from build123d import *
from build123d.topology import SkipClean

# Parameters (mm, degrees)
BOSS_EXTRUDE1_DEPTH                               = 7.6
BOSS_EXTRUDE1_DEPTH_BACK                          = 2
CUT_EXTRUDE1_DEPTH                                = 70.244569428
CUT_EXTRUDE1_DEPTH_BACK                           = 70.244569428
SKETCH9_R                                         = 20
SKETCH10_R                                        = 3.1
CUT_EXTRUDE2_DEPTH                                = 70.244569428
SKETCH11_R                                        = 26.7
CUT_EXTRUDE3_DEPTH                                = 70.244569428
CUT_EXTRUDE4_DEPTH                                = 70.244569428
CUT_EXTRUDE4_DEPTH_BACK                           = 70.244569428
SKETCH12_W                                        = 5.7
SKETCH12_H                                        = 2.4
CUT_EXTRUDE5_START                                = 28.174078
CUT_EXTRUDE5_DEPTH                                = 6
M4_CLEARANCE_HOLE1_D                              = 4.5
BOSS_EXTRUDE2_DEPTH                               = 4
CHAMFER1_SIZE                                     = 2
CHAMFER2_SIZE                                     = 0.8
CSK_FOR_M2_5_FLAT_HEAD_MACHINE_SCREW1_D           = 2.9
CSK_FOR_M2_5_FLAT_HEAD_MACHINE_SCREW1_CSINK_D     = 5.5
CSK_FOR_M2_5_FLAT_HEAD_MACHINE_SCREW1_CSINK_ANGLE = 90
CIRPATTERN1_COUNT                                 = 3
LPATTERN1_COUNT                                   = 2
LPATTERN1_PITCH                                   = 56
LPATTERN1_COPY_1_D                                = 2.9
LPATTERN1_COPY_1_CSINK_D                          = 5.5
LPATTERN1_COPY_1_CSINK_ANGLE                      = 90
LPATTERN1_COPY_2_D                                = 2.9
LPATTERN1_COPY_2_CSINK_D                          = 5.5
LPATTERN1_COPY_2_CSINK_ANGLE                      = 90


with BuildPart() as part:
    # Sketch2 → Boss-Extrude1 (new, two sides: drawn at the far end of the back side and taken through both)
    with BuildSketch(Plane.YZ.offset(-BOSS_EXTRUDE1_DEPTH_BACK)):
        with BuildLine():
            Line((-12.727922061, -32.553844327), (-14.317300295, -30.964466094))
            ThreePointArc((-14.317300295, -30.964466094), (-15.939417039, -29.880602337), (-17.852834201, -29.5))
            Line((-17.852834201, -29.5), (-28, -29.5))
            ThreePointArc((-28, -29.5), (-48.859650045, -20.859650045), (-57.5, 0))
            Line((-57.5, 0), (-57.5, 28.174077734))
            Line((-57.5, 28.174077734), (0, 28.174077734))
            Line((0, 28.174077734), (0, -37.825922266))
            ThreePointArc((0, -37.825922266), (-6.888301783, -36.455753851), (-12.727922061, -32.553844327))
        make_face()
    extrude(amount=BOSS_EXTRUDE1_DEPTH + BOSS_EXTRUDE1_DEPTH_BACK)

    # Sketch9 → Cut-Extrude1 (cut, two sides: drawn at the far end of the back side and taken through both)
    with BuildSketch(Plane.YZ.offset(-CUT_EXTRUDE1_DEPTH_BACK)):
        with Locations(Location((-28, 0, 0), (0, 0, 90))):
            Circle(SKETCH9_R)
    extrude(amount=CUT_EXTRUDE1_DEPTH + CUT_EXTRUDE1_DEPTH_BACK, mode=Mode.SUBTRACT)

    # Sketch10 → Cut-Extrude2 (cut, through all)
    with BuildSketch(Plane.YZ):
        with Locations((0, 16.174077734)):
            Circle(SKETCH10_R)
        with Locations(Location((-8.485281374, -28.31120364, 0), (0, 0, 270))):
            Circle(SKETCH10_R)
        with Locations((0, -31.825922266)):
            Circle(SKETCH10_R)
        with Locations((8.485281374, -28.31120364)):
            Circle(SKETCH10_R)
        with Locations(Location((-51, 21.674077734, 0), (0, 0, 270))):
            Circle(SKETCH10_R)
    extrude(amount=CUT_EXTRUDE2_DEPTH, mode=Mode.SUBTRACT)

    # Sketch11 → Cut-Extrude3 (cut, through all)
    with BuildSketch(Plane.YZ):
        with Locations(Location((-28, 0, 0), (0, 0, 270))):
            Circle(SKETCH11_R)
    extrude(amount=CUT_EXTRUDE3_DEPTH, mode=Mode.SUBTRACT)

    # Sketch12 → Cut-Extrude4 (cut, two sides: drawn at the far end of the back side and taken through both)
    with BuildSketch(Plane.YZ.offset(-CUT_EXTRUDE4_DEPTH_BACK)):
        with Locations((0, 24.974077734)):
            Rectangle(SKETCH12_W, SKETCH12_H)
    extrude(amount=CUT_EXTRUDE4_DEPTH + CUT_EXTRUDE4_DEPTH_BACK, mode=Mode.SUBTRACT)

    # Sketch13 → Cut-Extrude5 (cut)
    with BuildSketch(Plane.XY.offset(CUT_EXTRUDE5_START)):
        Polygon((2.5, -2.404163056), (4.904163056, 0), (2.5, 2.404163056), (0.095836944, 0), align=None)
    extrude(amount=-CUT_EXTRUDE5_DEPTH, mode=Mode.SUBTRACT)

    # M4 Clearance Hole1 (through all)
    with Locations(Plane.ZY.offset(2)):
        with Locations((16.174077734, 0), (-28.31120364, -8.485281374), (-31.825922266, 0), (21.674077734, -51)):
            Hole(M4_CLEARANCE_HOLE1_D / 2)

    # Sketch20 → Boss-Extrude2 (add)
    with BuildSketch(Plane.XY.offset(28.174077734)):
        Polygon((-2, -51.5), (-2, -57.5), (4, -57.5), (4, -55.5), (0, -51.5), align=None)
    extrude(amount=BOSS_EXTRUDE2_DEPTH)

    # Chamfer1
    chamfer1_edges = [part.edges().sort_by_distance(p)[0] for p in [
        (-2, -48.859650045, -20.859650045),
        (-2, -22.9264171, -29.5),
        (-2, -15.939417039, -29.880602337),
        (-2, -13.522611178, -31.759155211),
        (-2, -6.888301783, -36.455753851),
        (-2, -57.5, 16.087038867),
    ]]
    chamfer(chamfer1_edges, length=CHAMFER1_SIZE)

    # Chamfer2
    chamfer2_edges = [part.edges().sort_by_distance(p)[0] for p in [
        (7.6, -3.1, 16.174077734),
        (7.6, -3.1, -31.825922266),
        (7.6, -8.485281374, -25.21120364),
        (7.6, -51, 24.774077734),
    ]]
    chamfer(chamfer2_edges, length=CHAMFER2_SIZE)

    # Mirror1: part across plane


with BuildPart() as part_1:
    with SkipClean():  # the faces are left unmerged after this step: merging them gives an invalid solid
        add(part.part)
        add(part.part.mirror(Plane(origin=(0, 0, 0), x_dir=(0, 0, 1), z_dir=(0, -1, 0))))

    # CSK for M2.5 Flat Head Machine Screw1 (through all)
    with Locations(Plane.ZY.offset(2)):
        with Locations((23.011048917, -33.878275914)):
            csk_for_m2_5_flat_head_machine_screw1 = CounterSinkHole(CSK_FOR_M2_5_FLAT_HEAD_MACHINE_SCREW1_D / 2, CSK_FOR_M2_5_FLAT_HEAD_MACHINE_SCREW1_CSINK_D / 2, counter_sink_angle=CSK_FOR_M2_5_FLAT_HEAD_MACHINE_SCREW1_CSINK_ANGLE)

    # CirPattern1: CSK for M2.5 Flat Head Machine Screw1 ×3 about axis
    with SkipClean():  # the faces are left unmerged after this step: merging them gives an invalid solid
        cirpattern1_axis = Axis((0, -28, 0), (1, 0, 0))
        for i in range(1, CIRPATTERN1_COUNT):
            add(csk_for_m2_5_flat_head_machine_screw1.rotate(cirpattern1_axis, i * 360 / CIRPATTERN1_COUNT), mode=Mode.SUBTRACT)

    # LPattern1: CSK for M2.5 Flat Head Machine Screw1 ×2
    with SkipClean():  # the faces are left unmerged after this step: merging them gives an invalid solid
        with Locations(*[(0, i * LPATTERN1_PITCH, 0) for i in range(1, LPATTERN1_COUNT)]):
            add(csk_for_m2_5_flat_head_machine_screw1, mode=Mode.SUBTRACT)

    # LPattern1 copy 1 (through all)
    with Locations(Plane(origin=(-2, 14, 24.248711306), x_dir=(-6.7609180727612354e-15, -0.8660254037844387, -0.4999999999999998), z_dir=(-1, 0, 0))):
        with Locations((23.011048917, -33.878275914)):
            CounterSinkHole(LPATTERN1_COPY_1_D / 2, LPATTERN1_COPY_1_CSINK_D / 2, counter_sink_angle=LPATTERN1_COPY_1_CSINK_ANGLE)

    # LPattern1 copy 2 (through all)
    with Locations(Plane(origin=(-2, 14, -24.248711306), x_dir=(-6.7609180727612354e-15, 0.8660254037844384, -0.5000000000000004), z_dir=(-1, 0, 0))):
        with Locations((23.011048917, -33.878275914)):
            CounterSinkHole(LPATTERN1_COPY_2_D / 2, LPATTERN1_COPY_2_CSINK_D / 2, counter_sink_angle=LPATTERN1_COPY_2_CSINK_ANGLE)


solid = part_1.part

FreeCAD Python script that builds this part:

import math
import FreeCAD as App
import Part
import Sketcher
Q = App.Units.Quantity


def edges_at(feature, points):
    """Names of the edges that pass closest to the given points."""
    edges = feature.Shape.Edges
    near = lambda p: min(range(len(edges)), key=lambda i: edges[i].distToShape(Part.Vertex(*p))[0])
    return sorted({f"Edge{near(p) + 1}" for p in points})

doc = App.newDocument("Part")
body = doc.addObject("PartDesign::Body", "Body")

# Sketch on YZ plane
sketch1 = body.newObject("Sketcher::SketchObject", "Sketch")
sketch1.AttachmentSupport = (doc.getObject("YZ_Plane"), [""])
sketch1.MapMode = "FlatFace"
sketch1.addGeometry([
    Part.LineSegment(App.Vector(-14.3173, -30.964466, 0), App.Vector(-12.727922, -32.553844, 0)),  # 0
    Part.ArcOfCircle(Part.Circle(App.Vector(0, -19.825922, 0), App.Vector(0, 0, 1), 18), math.radians(-135), math.radians(-90)),  # 1
    Part.LineSegment(App.Vector(0, -37.825922, 0), App.Vector(0, 28.174078, 0)),  # 2
    Part.LineSegment(App.Vector(0, 28.174078, 0), App.Vector(-57.5, 28.174078, 0)),  # 3
    Part.LineSegment(App.Vector(-57.5, 28.174078, 0), App.Vector(-57.5, 0, 0)),  # 4
    Part.ArcOfCircle(Part.Circle(App.Vector(-28, 0, 0), App.Vector(0, 0, 1), 29.5), math.radians(180), math.radians(270)),  # 5
    Part.LineSegment(App.Vector(-28, -29.5, 0), App.Vector(-17.852834, -29.5, 0)),  # 6
    Part.ArcOfCircle(Part.Circle(App.Vector(-17.852834, -34.5, 0), App.Vector(0, 0, 1), 5), math.radians(45), math.radians(90)),  # 7
], False)
sketch1.addConstraint([
    Sketcher.Constraint("Tangent", 0, 2, 1, 1),
    Sketcher.Constraint("Coincident", 1, 2, 2, 1),
    Sketcher.Constraint("Coincident", 2, 2, 3, 1),
    Sketcher.Constraint("Coincident", 3, 2, 4, 1),
    Sketcher.Constraint("Tangent", 4, 2, 5, 1),
    Sketcher.Constraint("Tangent", 5, 2, 6, 1),
    Sketcher.Constraint("Tangent", 6, 2, 7, 2),
    Sketcher.Constraint("Tangent", 7, 1, 0, 1),
    Sketcher.Constraint("Vertical", 2),
    Sketcher.Constraint("Horizontal", 3),
    Sketcher.Constraint("Vertical", 4),
    Sketcher.Constraint("Horizontal", 6),
    Sketcher.Constraint("PointOnObject", 1, 3, -2),
    Sketcher.Constraint("PointOnObject", 5, 3, -1),
    Sketcher.Constraint("PointOnObject", 1, 2, -2),
    Sketcher.Constraint("Radius", 1, Q("18 mm")),
    Sketcher.Constraint("Radius", 7, Q("5 mm")),
    Sketcher.Constraint("Radius", 5, Q("29.5 mm")),
    Sketcher.Constraint("DistanceY", 2, 1, 2, 2, Q("66 mm")),
    Sketcher.Constraint("Angle", 0, Q("-45 deg")),
    Sketcher.Constraint("DistanceX", 3, 2, 3, 1, Q("57.5 mm")),
    Sketcher.Constraint("DistanceX", 7, 1, -1, 1, Q("14.3173 mm")),
])
pad1 = body.newObject("PartDesign::Pad", "Pad")
pad1.Profile = sketch1
pad1.Type = "TwoLengths"
pad1.Length = 7.6
pad1.Length2 = 2

# Sketch on YZ plane
sketch2 = body.newObject("Sketcher::SketchObject", "Sketch001")
sketch2.AttachmentSupport = (doc.getObject("YZ_Plane"), [""])
sketch2.MapMode = "FlatFace"
sketch2.addGeometry(Part.Circle(App.Vector(-28, 0, 0), App.Vector(0, 0, 1), 20), False)
sketch2.addConstraint([
    Sketcher.Constraint("PointOnObject", 0, 3, -1),
    Sketcher.Constraint("Diameter", 0, Q("40 mm")),
    Sketcher.Constraint("DistanceX", 0, 3, -1, 1, Q("28 mm")),
])
pocket1 = body.newObject("PartDesign::Pocket", "Pocket")
pocket1.Profile = sketch2
pocket1.Type = "ThroughAll"
pocket1.Midplane = True

# Sketch on YZ plane
sketch3 = body.newObject("Sketcher::SketchObject", "Sketch002")
sketch3.AttachmentSupport = (doc.getObject("YZ_Plane"), [""])
sketch3.MapMode = "FlatFace"
sketch3.addGeometry([
    Part.Circle(App.Vector(0, 16.174078, 0), App.Vector(0, 0, 1), 3.1),  # 0
    Part.Circle(App.Vector(-8.485281, -28.311204, 0), App.Vector(0, 0, 1), 3.1),  # 1
    Part.Circle(App.Vector(0, -31.825922, 0), App.Vector(0, 0, 1), 3.1),  # 2
    Part.Circle(App.Vector(8.485281, -28.311204, 0), App.Vector(0, 0, 1), 3.1),  # 3
    Part.Circle(App.Vector(-51, 21.674078, 0), App.Vector(0, 0, 1), 3.1),  # 4
], False)
sketch3.addConstraint([
    Sketcher.Constraint("Equal", 0, 1),
    Sketcher.Constraint("Equal", 1, 2),
    Sketcher.Constraint("Equal", 2, 3),
    Sketcher.Constraint("Equal", 3, 4),
    Sketcher.Constraint("Symmetric", 1, 3, 3, 3, -2),
    Sketcher.Constraint("PointOnObject", 0, 3, -2),
    Sketcher.Constraint("PointOnObject", 2, 3, -2),
    Sketcher.Constraint("Diameter", 0, Q("6.2 mm")),
    Sketcher.Constraint("DistanceX", 4, 3, -1, 1, Q("51 mm")),
    Sketcher.Constraint("DistanceY", 2, 3, 0, 3, Q("48 mm")),
    Sketcher.Constraint("DistanceY", 0, 3, 4, 3, Q("5.5 mm")),
    Sketcher.Constraint("DistanceX", 1, 3, -1, 1, Q("8.485281 mm")),
    Sketcher.Constraint("DistanceY", 1, 3, 0, 3, Q("44.485281 mm")),
    Sketcher.Constraint("DistanceY", -1, 1, 0, 3, Q("16.174078 mm")),
])
pocket2 = body.newObject("PartDesign::Pocket", "Pocket001")
pocket2.Profile = sketch3
pocket2.Type = "ThroughAll"
pocket2.Reversed = True

# Sketch on YZ plane
sketch4 = body.newObject("Sketcher::SketchObject", "Sketch003")
sketch4.AttachmentSupport = (doc.getObject("YZ_Plane"), [""])
sketch4.MapMode = "FlatFace"
sketch4.addGeometry(Part.Circle(App.Vector(-28, 0, 0), App.Vector(0, 0, 1), 26.7), False)
sketch4.addConstraint([
    Sketcher.Constraint("PointOnObject", 0, 3, -1),
    Sketcher.Constraint("Diameter", 0, Q("53.4 mm")),
    Sketcher.Constraint("DistanceX", 0, 3, -1, 1, Q("28 mm")),
])
pocket3 = body.newObject("PartDesign::Pocket", "Pocket002")
pocket3.Profile = sketch4
pocket3.Type = "ThroughAll"
pocket3.Reversed = True

# Sketch on YZ plane
sketch5 = body.newObject("Sketcher::SketchObject", "Sketch004")
sketch5.AttachmentSupport = (doc.getObject("YZ_Plane"), [""])
sketch5.MapMode = "FlatFace"
sketch5.addGeometry([
    Part.LineSegment(App.Vector(-2.85, 26.174078, 0), App.Vector(-2.85, 23.774078, 0)),
    Part.LineSegment(App.Vector(-2.85, 23.774078, 0), App.Vector(2.85, 23.774078, 0)),
    Part.LineSegment(App.Vector(2.85, 23.774078, 0), App.Vector(2.85, 26.174078, 0)),
    Part.LineSegment(App.Vector(2.85, 26.174078, 0), App.Vector(-2.85, 26.174078, 0)),
], False)
sketch5.addConstraint([
    Sketcher.Constraint("Coincident", 0, 2, 1, 1),
    Sketcher.Constraint("Coincident", 1, 2, 2, 1),
    Sketcher.Constraint("Coincident", 2, 2, 3, 1),
    Sketcher.Constraint("Coincident", 3, 2, 0, 1),
    Sketcher.Constraint("Vertical", 0),
    Sketcher.Constraint("Horizontal", 1),
    Sketcher.Constraint("Vertical", 2),
    Sketcher.Constraint("Horizontal", 3),
    Sketcher.Constraint("DistanceX", 1, 1, 1, 2, Q("5.7 mm")),
    Sketcher.Constraint("DistanceY", 0, 2, 0, 1, Q("2.4 mm")),
    Sketcher.Constraint("DistanceX", 0, 2, -1, 1, Q("2.85 mm")),
    Sketcher.Constraint("DistanceY", -1, 1, 0, 2, Q("23.774078 mm")),
])
pocket4 = body.newObject("PartDesign::Pocket", "Pocket003")
pocket4.Profile = sketch5
pocket4.Type = "ThroughAll"
pocket4.Midplane = True

# Sketch on XY plane
sketch6 = body.newObject("Sketcher::SketchObject", "Sketch005")
sketch6.AttachmentSupport = (doc.getObject("XY_Plane"), [""])
sketch6.MapMode = "FlatFace"
sketch6.AttachmentOffset = App.Placement(App.Vector(0, 0, 28.174078), App.Rotation())
sketch6.addGeometry([
    Part.LineSegment(App.Vector(2.5, -2.404163, 0), App.Vector(4.904163, 0, 0)),
    Part.LineSegment(App.Vector(4.904163, 0, 0), App.Vector(2.5, 2.404163, 0)),
    Part.LineSegment(App.Vector(2.5, 2.404163, 0), App.Vector(0.095837, 0, 0)),
    Part.LineSegment(App.Vector(0.095837, 0, 0), App.Vector(2.5, -2.404163, 0)),
], False)
sketch6.addConstraint([
    Sketcher.Constraint("Coincident", 0, 2, 1, 1),
    Sketcher.Constraint("Coincident", 1, 2, 2, 1),
    Sketcher.Constraint("Coincident", 2, 2, 3, 1),
    Sketcher.Constraint("Coincident", 3, 2, 0, 1),
    Sketcher.Constraint("Symmetric", 1, 2, 3, 2, -1),
    Sketcher.Constraint("PointOnObject", 0, 2, -1),
    Sketcher.Constraint("PointOnObject", 2, 2, -1),
    Sketcher.Constraint("Perpendicular", 0, 1),
    Sketcher.Constraint("Perpendicular", 1, 2),
    Sketcher.Constraint("Distance", 0, Q("3.4 mm")),
    Sketcher.Constraint("DistanceX", -1, 1, 1, 2, Q("2.5 mm")),
])
pocket5 = body.newObject("PartDesign::Pocket", "Pocket004")
pocket5.Profile = sketch6
pocket5.Length = 6

# Sketch on YZ plane
sketch7 = body.newObject("Sketcher::SketchObject", "Sketch006")
sketch7.AttachmentSupport = (doc.getObject("YZ_Plane"), [""])
sketch7.MapMode = "FlatFace"
sketch7.AttachmentOffset = App.Placement(App.Vector(0, 0, -2), App.Rotation())
sketch7.addGeometry([
    Part.Circle(App.Vector(0, 16.174078, 0), App.Vector(0, 0, 1), 2.25),
    Part.Circle(App.Vector(-8.485281, -28.311204, 0), App.Vector(0, 0, 1), 2.25),
    Part.Circle(App.Vector(0, -31.825922, 0), App.Vector(0, 0, 1), 2.25),
    Part.Circle(App.Vector(-51, 21.674078, 0), App.Vector(0, 0, 1), 2.25),
], False)
sketch7.addConstraint([
    Sketcher.Constraint("Equal", 0, 1),
    Sketcher.Constraint("Equal", 1, 2),
    Sketcher.Constraint("Equal", 2, 3),
    Sketcher.Constraint("PointOnObject", 0, 3, -2),
    Sketcher.Constraint("PointOnObject", 2, 3, -2),
    Sketcher.Constraint("Diameter", 0, Q("4.5 mm")),
    Sketcher.Constraint("DistanceX", 3, 3, -1, 1, Q("51 mm")),
    Sketcher.Constraint("DistanceY", 2, 3, 0, 3, Q("48 mm")),
    Sketcher.Constraint("DistanceY", 0, 3, 3, 3, Q("5.5 mm")),
    Sketcher.Constraint("DistanceX", 1, 3, -1, 1, Q("8.485281 mm")),
    Sketcher.Constraint("DistanceY", 1, 3, 0, 3, Q("44.485281 mm")),
    Sketcher.Constraint("DistanceY", -1, 1, 0, 3, Q("16.174078 mm")),
])
doc.recompute()
hole = body.newObject("PartDesign::Hole", "Hole")
hole.Profile = sketch7
hole.ThreadType = "None"
hole.Diameter = 4.5
hole.DepthType = "ThroughAll"
hole.Reversed = True

# Sketch on XY plane
sketch8 = body.newObject("Sketcher::SketchObject", "Sketch007")
sketch8.AttachmentSupport = (doc.getObject("XY_Plane"), [""])
sketch8.MapMode = "FlatFace"
sketch8.AttachmentOffset = App.Placement(App.Vector(0, 0, 28.174078), App.Rotation())
sketch8.addGeometry([
    Part.LineSegment(App.Vector(-2, -51.5, 0), App.Vector(-2, -57.5, 0)),  # 0
    Part.LineSegment(App.Vector(-2, -57.5, 0), App.Vector(4, -57.5, 0)),  # 1
    Part.LineSegment(App.Vector(4, -57.5, 0), App.Vector(4, -55.5, 0)),  # 2
    Part.LineSegment(App.Vector(4, -55.5, 0), App.Vector(0, -51.5, 0)),  # 3
    Part.LineSegment(App.Vector(0, -51.5, 0), App.Vector(-2, -51.5, 0)),  # 4
], False)
sketch8.addConstraint([
    Sketcher.Constraint("Coincident", 0, 2, 1, 1),
    Sketcher.Constraint("Coincident", 1, 2, 2, 1),
    Sketcher.Constraint("Coincident", 2, 2, 3, 1),
    Sketcher.Constraint("Coincident", 3, 2, 4, 1),
    Sketcher.Constraint("Coincident", 4, 2, 0, 1),
    Sketcher.Constraint("Vertical", 0),
    Sketcher.Constraint("Horizontal", 1),
    Sketcher.Constraint("Vertical", 2),
    Sketcher.Constraint("Horizontal", 4),
    Sketcher.Constraint("PointOnObject", 3, 2, -2),
    Sketcher.Constraint("Equal", 1, 0),
    Sketcher.Constraint("Equal", 4, 2),
    Sketcher.Constraint("DistanceX", 1, 1, 1, 2, Q("6 mm")),
    Sketcher.Constraint("DistanceX", 4, 2, 4, 1, Q("2 mm")),
    Sketcher.Constraint("DistanceY", 0, 2, -1, 1, Q("57.5 mm")),
])
pad2 = body.newObject("PartDesign::Pad", "Pad001")
pad2.Profile = sketch8
pad2.Length = 4
doc.recompute()

chamfer = body.newObject("PartDesign::Chamfer", "Chamfer")
chamfer.Base = (pad2, edges_at(pad2, [
    (-2, -48.86, -20.86),
    (-2, -22.926, -29.5),
    (-2, -15.939, -29.881),
    (-2, -13.523, -31.759),
    (-2, -6.888, -36.456),
    (-2, -57.5, 16.087),
]))
chamfer.Size = 2
doc.recompute()

chamfer2 = body.newObject("PartDesign::Chamfer", "Chamfer001")
chamfer2.Base = (chamfer, edges_at(chamfer, [
    (7.6, -3.1, 16.174),
    (7.6, -3.1, -31.826),
    (7.6, -8.485, -25.211),
    (7.6, -51, 24.774),
]))
chamfer2.Size = 0.8
body2 = doc.addObject("PartDesign::Body", "Body001")
doc.recompute()

body2.BaseFeature = body
doc.recompute()

mirroring = doc.addObject("Part::Mirroring", "Mirroring")
mirroring.Source = body
mirroring.Base = App.Vector(0, 0, 0)
mirroring.Normal = App.Vector(0, -1, 0)
body3 = doc.addObject("PartDesign::Body", "Body002")
body3.BaseFeature = mirroring
boolean = body2.newObject("PartDesign::Boolean", "Boolean")
boolean.Type = "Fuse"
boolean.addObjects([body3])
doc.recompute()

# Sketch on YZ plane
sketch9 = body2.newObject("Sketcher::SketchObject", "Sketch008")
sketch9.AttachmentSupport = (doc.getObject("YZ_Plane001"), [""])
sketch9.MapMode = "FlatFace"
sketch9.AttachmentOffset = App.Placement(App.Vector(0, 0, -2), App.Rotation())
sketch9.addGeometry(Part.Circle(App.Vector(-33.878276, 23.011049, 0), App.Vector(0, 0, 1), 1.45), False)
sketch9.addConstraint([
    Sketcher.Constraint("Diameter", 0, Q("2.9 mm")),
    Sketcher.Constraint("DistanceY", -1, 1, 0, 3, Q("23.011049 mm")),
    Sketcher.Constraint("DistanceX", 0, 3, -1, 1, Q("33.878276 mm")),
])
doc.recompute()
hole2 = body2.newObject("PartDesign::Hole", "Hole001")
hole2.Profile = sketch9
hole2.ThreadType = "None"
hole2.Diameter = 2.9
hole2.DepthType = "ThroughAll"
hole2.HoleCutType = "Countersink"
hole2.HoleCutDiameter = 5.5
hole2.HoleCutCountersinkAngle = 90
hole2.Reversed = True
doc.recompute()

datumline = body2.newObject("PartDesign::Line", "DatumLine")
datumline.Placement = App.Placement(App.Vector(0, -28, 0), App.Rotation(App.Vector(0, 0, 1), App.Vector(1, 0, 0)))
polarpattern = body2.newObject("PartDesign::PolarPattern", "PolarPattern")
polarpattern.Originals = [hole2]
polarpattern.Axis = (datumline, [""])
polarpattern.Angle = 360
polarpattern.Occurrences = 3
body2.Tip = polarpattern
doc.recompute()

linearpattern = body2.newObject("PartDesign::LinearPattern", "LinearPattern")
linearpattern.Originals = [hole2]
linearpattern.Direction = (doc.getObject("Y_Axis001"), [""])
linearpattern.Mode = "offset"
linearpattern.Offset = 56
linearpattern.Occurrences = 2
body2.Tip = linearpattern

# Sketch on YZ plane
sketch10 = body2.newObject("Sketcher::SketchObject", "Sketch009")
sketch10.AttachmentSupport = (doc.getObject("YZ_Plane001"), [""])
sketch10.MapMode = "FlatFace"
sketch10.AttachmentOffset = App.Placement(App.Vector(0, 0, -2), App.Rotation())
sketch10.addGeometry(Part.Circle(App.Vector(11.010985, -16.596261, 0), App.Vector(0, 0, 1), 1.45), False)
sketch10.addConstraint([
    Sketcher.Constraint("Diameter", 0, Q("2.9 mm")),
    Sketcher.Constraint("DistanceY", 0, 3, -1, 1, Q("16.596261 mm")),
    Sketcher.Constraint("DistanceX", -1, 1, 0, 3, Q("11.010985 mm")),
])
doc.recompute()
hole3 = body2.newObject("PartDesign::Hole", "Hole002")
hole3.Profile = sketch10
hole3.ThreadType = "None"
hole3.Diameter = 2.9
hole3.DepthType = "ThroughAll"
hole3.HoleCutType = "Countersink"
hole3.HoleCutDiameter = 5.5
hole3.HoleCutCountersinkAngle = 90
hole3.Reversed = True

# Sketch on YZ plane
sketch11 = body2.newObject("Sketcher::SketchObject", "Sketch010")
sketch11.AttachmentSupport = (doc.getObject("YZ_Plane001"), [""])
sketch11.MapMode = "FlatFace"
sketch11.AttachmentOffset = App.Placement(App.Vector(0, 0, -2), App.Rotation())
sketch11.addGeometry(Part.Circle(App.Vector(50.867291, -6.414788, 0), App.Vector(0, 0, 1), 1.45), False)
sketch11.addConstraint([
    Sketcher.Constraint("Diameter", 0, Q("2.9 mm")),
    Sketcher.Constraint("DistanceX", -1, 1, 0, 3, Q("50.867291 mm")),
    Sketcher.Constraint("DistanceY", 0, 3, -1, 1, Q("6.414788 mm")),
])
doc.recompute()
hole4 = body2.newObject("PartDesign::Hole", "Hole003")
hole4.Profile = sketch11
hole4.ThreadType = "None"
hole4.Diameter = 2.9
hole4.DepthType = "ThroughAll"
hole4.HoleCutType = "Countersink"
hole4.HoleCutDiameter = 5.5
hole4.HoleCutCountersinkAngle = 90
hole4.Reversed = True
mirroring.Visibility = False

doc.recompute()
